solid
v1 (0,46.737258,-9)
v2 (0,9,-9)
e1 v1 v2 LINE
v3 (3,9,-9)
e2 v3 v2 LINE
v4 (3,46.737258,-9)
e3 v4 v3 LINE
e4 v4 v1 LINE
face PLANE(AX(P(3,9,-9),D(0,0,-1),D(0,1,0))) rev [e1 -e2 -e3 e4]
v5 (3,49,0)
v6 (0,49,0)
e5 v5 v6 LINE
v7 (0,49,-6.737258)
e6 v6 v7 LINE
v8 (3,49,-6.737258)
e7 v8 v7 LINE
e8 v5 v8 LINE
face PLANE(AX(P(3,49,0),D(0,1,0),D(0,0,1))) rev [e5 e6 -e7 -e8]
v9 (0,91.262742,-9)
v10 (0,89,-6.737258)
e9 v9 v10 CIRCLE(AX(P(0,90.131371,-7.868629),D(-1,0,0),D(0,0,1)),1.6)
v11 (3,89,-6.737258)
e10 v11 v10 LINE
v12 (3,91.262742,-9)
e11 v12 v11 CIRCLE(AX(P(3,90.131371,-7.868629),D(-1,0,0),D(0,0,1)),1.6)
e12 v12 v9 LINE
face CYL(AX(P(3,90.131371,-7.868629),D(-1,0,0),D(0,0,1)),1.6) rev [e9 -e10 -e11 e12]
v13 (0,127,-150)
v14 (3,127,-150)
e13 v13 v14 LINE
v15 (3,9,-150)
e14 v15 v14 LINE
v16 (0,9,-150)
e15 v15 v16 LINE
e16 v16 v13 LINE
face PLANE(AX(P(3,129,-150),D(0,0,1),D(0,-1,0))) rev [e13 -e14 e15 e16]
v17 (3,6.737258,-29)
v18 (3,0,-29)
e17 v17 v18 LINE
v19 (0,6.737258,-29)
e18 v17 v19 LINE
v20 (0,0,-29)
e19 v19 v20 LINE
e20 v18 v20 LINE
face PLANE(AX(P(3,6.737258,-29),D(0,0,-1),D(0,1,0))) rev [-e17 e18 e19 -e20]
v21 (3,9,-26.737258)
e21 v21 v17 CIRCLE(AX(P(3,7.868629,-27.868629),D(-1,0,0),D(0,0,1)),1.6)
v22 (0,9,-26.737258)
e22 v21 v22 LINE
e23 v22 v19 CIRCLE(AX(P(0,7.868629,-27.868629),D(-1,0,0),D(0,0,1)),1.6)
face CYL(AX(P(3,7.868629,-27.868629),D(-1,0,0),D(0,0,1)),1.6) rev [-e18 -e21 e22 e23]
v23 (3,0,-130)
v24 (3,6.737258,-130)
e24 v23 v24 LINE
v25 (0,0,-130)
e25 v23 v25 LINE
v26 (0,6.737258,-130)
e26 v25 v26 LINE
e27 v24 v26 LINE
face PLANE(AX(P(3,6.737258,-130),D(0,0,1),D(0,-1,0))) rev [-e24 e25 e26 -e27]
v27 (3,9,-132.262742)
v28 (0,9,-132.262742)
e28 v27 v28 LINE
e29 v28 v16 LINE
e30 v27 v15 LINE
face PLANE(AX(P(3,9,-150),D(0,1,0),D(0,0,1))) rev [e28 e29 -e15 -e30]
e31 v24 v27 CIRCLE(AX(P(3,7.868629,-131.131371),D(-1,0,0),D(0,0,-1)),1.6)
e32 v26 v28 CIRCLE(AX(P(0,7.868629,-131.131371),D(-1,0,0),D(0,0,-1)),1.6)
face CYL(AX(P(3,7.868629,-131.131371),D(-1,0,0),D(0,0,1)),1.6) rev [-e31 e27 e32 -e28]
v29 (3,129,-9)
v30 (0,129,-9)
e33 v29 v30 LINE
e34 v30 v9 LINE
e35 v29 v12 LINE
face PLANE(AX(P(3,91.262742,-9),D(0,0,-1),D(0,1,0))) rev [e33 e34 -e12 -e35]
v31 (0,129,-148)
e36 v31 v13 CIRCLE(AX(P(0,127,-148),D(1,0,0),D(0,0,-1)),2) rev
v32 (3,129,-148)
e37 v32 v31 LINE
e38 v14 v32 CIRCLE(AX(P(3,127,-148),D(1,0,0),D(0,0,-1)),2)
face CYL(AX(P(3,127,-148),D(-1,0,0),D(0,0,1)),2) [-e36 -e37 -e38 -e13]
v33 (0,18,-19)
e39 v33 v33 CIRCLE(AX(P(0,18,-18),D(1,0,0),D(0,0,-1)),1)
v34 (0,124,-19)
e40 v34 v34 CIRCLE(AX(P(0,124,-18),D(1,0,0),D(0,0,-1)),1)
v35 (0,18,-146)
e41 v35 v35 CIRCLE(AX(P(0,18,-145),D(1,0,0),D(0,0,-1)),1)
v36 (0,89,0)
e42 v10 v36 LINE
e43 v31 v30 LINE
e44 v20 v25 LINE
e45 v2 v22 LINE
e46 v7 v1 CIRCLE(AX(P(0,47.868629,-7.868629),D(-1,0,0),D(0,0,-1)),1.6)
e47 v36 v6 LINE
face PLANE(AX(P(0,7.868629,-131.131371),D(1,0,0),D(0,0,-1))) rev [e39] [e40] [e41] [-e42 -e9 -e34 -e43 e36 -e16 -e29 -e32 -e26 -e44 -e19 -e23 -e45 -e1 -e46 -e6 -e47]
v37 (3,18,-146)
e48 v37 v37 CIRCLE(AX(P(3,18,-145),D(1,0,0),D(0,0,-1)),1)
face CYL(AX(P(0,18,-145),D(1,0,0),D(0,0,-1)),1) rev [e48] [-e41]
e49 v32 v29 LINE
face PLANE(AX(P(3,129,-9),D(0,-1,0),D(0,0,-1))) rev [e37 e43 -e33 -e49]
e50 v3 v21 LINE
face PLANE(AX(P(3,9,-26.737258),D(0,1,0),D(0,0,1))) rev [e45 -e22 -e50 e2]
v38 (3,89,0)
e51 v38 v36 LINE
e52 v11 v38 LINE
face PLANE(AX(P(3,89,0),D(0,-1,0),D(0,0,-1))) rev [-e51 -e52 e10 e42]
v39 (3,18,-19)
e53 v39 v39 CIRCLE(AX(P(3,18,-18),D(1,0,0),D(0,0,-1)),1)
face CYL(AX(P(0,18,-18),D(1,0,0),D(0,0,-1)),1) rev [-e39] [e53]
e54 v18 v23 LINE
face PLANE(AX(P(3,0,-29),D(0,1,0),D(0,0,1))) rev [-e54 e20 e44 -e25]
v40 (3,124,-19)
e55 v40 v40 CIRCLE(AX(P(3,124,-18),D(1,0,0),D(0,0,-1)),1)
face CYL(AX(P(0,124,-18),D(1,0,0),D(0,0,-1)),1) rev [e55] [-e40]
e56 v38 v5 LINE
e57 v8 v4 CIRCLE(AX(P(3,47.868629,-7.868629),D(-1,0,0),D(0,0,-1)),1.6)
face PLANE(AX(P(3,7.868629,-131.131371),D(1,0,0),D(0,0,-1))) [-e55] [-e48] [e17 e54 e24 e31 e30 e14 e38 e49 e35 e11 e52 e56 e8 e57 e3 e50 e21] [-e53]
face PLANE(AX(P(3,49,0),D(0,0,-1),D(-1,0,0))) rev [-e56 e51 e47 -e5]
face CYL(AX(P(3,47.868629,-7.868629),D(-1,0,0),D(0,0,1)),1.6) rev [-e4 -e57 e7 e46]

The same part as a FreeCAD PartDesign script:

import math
import FreeCAD as App
import Part
import Sketcher
from FreeCAD import Vector


def edges_at(feature, points):
    """Names of the edges that pass closest to the given points."""
    edges = feature.Shape.Edges
    near = lambda p: min(range(len(edges)), key=lambda i: edges[i].distToShape(Part.Vertex(*p))[0])
    return sorted({f"Edge{near(p) + 1}" for p in points})

doc = App.newDocument("Part")
params = doc.addObject("Spreadsheet::Sheet", "Params")
for row, (alias, value) in enumerate([
    ("sketch1_radius", "1.6 mm"),
    ("sketch1_width", "120 mm"),
    ("sketch1_width2", "40 mm"),
    ("sketch1_height", "141 mm"),
    ("sketch1_height2", "101 mm"),
    ("pad1_length", "3 mm"),
    ("sketch2_diameter", "2 mm"),
    ("fillet_radius", "2 mm"),
], start=1):
    params.set(f"A{row}", alias)
    params.set(f"B{row}", "=" + value)
    params.setAlias(f"B{row}", alias)

body = doc.addObject("PartDesign::Body", "Body")

# Sketch on YZ plane
sketch1 = doc.addObject("Sketcher::SketchObject", "Sketch")
body.addObject(sketch1)
sketch1.AttachmentSupport = (doc.YZ_Plane, [""])
sketch1.MapMode = "FlatFace"
sketch1.addGeometry([
    Part.LineSegment(Vector(0, -130, 0), Vector(6.737258, -130, 0)),  # 0
    Part.ArcOfCircle(Part.Circle(Vector(7.868629, -131.131371, 0), Vector(0, 0, 1), 1.6), math.radians(-45), math.radians(135)),  # 1
    Part.LineSegment(Vector(9, -132.262742, 0), Vector(9, -150, 0)),  # 2
    Part.LineSegment(Vector(9, -150, 0), Vector(129, -150, 0)),  # 3
    Part.LineSegment(Vector(129, -150, 0), Vector(129, -9, 0)),  # 4
    Part.LineSegment(Vector(129, -9, 0), Vector(91.262742, -9, 0)),  # 5
    Part.ArcOfCircle(Part.Circle(Vector(90.131371, -7.868629, 0), Vector(0, 0, 1), 1.6), math.radians(135), math.radians(315)),  # 6
    Part.LineSegment(Vector(89, -6.737258, 0), Vector(89, 0, 0)),  # 7
    Part.LineSegment(Vector(89, 0, 0), Vector(49, 0, 0)),  # 8
    Part.LineSegment(Vector(49, 0, 0), Vector(49, -6.737258, 0)),  # 9
    Part.ArcOfCircle(Part.Circle(Vector(47.868629, -7.868629, 0), Vector(0, 0, 1), 1.6), math.radians(-135), math.radians(45)),  # 10
    Part.LineSegment(Vector(46.737258, -9, 0), Vector(9, -9, 0)),  # 11
    Part.LineSegment(Vector(9, -9, 0), Vector(9, -26.737258, 0)),  # 12
    Part.ArcOfCircle(Part.Circle(Vector(7.868629, -27.868629, 0), Vector(0, 0, 1), 1.6), math.radians(-135), math.radians(45)),  # 13
    Part.LineSegment(Vector(6.737258, -29, 0), Vector(0, -29, 0)),  # 14
    Part.LineSegment(Vector(0, -29, 0), Vector(0, -130, 0)),  # 15
], False)
sketch1.addConstraint([
    Sketcher.Constraint("Coincident", 0, 2, 1, 2),
    Sketcher.Constraint("Coincident", 1, 1, 2, 1),
    Sketcher.Constraint("Coincident", 2, 2, 3, 1),
    Sketcher.Constraint("Coincident", 3, 2, 4, 1),
    Sketcher.Constraint("Coincident", 4, 2, 5, 1),
    Sketcher.Constraint("Coincident", 5, 2, 6, 2),
    Sketcher.Constraint("Coincident", 6, 1, 7, 1),
    Sketcher.Constraint("Coincident", 7, 2, 8, 1),
    Sketcher.Constraint("Coincident", 8, 2, 9, 1),
    Sketcher.Constraint("Coincident", 9, 2, 10, 2),
    Sketcher.Constraint("Coincident", 10, 1, 11, 1),
    Sketcher.Constraint("Coincident", 11, 2, 12, 1),
    Sketcher.Constraint("Coincident", 12, 2, 13, 2),
    Sketcher.Constraint("Coincident", 13, 1, 14, 1),
    Sketcher.Constraint("Coincident", 14, 2, 15, 1),
    Sketcher.Constraint("Coincident", 15, 2, 0, 1),
    Sketcher.Constraint("Horizontal", 0),
    Sketcher.Constraint("Vertical", 2),
    Sketcher.Constraint("Horizontal", 3),
    Sketcher.Constraint("Vertical", 4),
    Sketcher.Constraint("Horizontal", 5),
    Sketcher.Constraint("Vertical", 7),
    Sketcher.Constraint("Horizontal", 8),
    Sketcher.Constraint("Vertical", 9),
    Sketcher.Constraint("Horizontal", 11),
    Sketcher.Constraint("Vertical", 12),
    Sketcher.Constraint("Horizontal", 14),
    Sketcher.Constraint("Vertical", 15),
    Sketcher.Constraint("Equal", 1, 6),
    Sketcher.Constraint("Equal", 6, 10),
    Sketcher.Constraint("Equal", 10, 13),
    Sketcher.Constraint("PointOnObject", 7, 2, -1),
    Sketcher.Constraint("PointOnObject", 14, 2, -2),
    Sketcher.Constraint("Horizontal", 6, 3, 10, 3),
    Sketcher.Constraint("Horizontal", 6, 1, 9, 2),
    Sketcher.Constraint("Horizontal", 5, 2, 10, 1),
    Sketcher.Constraint("Vertical", 1, 3, 13, 3),
    Sketcher.Constraint("Vertical", 2, 2, 11, 2),
    Sketcher.Constraint("Vertical", 0, 2, 13, 1),
    Sketcher.Constraint("Equal", 5, 11),
    Sketcher.Constraint("Equal", 14, 7),
    Sketcher.Constraint("Equal", 2, 12),
    Sketcher.Constraint("Radius", 1, 1.6),
    Sketcher.Constraint("DistanceX", 3, 1, 3, 2, 120.0),
    Sketcher.Constraint("DistanceX", 8, 2, 8, 1, 40.0),
    Sketcher.Constraint("DistanceY", 4, 1, 4, 2, 141.0),
    Sketcher.Constraint("DistanceY", 15, 2, 15, 1, 101.0),
    Sketcher.Constraint("DistanceY", 0, 2, -1, 1, 130.0),
    Sketcher.Constraint("DistanceX", -1, 1, 1, 1, 9.0),
    Sketcher.Constraint("DistanceX", 1, 3, 10, 3, 40.0),
    Sketcher.Constraint("DistanceY", 13, 3, 10, 3, 20.0),
    Sketcher.Constraint("DistanceX", -1, 1, 1, 3, 7.868629),
])
sketch1.setExpression("Constraints[42]", "Params.sketch1_radius")
sketch1.setExpression("Constraints[43]", "Params.sketch1_width")
sketch1.setExpression("Constraints[44]", "Params.sketch1_width2")
sketch1.setExpression("Constraints[45]", "Params.sketch1_height")
sketch1.setExpression("Constraints[46]", "Params.sketch1_height2")
pad1 = doc.addObject("PartDesign::Pad", "Pad")
body.addObject(pad1)
pad1.Profile = sketch1
pad1.setExpression("Length", "Params.pad1_length")

# Sketch on YZ plane
sketch2 = doc.addObject("Sketcher::SketchObject", "Sketch001")
body.addObject(sketch2)
sketch2.AttachmentSupport = (doc.YZ_Plane, [""])
sketch2.MapMode = "FlatFace"
sketch2.AttachmentOffset = App.Placement(Vector(0, 0, 3), App.Rotation())
sketch2.addGeometry([
    Part.Circle(Vector(124, -18, 0), Vector(0, 0, 1), 1),
    Part.Circle(Vector(18, -18, 0), Vector(0, 0, 1), 1),
    Part.Circle(Vector(18, -145, 0), Vector(0, 0, 1), 1),
], False)
sketch2.addConstraint([
    Sketcher.Constraint("Equal", 0, 1),
    Sketcher.Constraint("Equal", 1, 2),
    Sketcher.Constraint("Horizontal", 0, 3, 1, 3),
    Sketcher.Constraint("Vertical", 1, 3, 2, 3),
    Sketcher.Constraint("Diameter", 0, 2.0),
    Sketcher.Constraint("DistanceX", -1, 1, 0, 3, 124.0),
    Sketcher.Constraint("DistanceY", 0, 3, -1, 1, 18.0),
    Sketcher.Constraint("DistanceX", -1, 1, 1, 3, 18.0),
    Sketcher.Constraint("DistanceY", 2, 3, -1, 1, 145.0),
])
sketch2.setExpression("Constraints[4]", "Params.sketch2_diameter")
pocket1 = doc.addObject("PartDesign::Pocket", "Pocket")
body.addObject(pocket1)
pocket1.Profile = sketch2
pocket1.Type = "ThroughAll"
doc.recompute()

fillet = doc.addObject("PartDesign::Fillet", "Fillet")
body.addObject(fillet)
fillet.Base = (pocket1, edges_at(pocket1, [(1.5, 129, -150)]))
fillet.setExpression("Radius", "Params.fillet_radius")

doc.recompute()
